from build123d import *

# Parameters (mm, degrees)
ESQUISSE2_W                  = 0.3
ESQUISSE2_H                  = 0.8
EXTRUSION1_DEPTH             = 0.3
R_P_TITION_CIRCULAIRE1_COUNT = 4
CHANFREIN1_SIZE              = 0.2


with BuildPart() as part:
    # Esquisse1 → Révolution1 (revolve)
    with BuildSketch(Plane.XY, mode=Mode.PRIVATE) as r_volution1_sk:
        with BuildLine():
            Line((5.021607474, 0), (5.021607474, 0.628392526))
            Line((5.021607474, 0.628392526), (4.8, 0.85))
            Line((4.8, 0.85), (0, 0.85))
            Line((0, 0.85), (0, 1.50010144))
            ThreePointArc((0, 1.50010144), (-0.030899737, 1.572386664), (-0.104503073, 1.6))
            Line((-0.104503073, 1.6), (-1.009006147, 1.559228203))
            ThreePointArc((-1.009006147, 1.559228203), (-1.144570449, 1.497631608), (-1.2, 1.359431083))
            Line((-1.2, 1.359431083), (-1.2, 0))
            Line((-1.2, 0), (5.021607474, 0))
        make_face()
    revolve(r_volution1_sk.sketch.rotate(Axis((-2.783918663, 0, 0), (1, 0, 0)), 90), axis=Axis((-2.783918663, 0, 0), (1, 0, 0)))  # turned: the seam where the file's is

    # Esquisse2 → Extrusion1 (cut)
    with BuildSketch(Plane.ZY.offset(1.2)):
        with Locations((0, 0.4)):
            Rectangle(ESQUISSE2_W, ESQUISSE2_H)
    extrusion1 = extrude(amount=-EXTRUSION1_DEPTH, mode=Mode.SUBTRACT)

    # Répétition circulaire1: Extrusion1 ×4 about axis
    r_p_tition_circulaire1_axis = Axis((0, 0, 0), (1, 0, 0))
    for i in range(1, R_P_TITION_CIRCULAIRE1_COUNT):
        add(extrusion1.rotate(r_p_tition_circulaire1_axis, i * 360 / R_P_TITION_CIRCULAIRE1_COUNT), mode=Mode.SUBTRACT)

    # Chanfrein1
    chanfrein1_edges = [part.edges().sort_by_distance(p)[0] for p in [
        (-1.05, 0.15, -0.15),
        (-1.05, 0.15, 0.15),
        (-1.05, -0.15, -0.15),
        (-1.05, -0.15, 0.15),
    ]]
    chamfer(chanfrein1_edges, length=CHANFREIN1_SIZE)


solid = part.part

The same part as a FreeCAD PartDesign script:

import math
import FreeCAD as App
import Part
import Sketcher

V = App.Vector
Q = App.Units.Quantity


def edges_at(feature, points):
    """Names of the edges that pass closest to the given points."""
    edges = feature.Shape.Edges
    near = lambda p: min(range(len(edges)), key=lambda i: edges[i].distToShape(Part.Vertex(*p))[0])
    return sorted({f"Edge{near(p) + 1}" for p in points})

doc = App.newDocument("Part")
params = doc.addObject("Spreadsheet::Sheet", "Params")
for row, (alias, value) in enumerate([
    ("sketch1_radius", "0.1 mm"),
    ("sketch1_radius2", "0.2 mm"),
    ("sketch1_width", "4.8 mm"),
    ("revolution_angle", "360 deg"),
    ("sketch2_width", "0.8 mm"),
    ("sketch2_height", "0.3 mm"),
    ("pocket1_length", "0.3 mm"),
    ("chamfer_size", "0.2 mm"),
], start=1):
    params.set(f"A{row}", alias)
    params.set(f"B{row}", "=" + value)
    params.setAlias(f"B{row}", alias)

body = doc.addObject("PartDesign::Body", "Body")

sketch1 = body.newObject("Sketcher::SketchObject", "Sketch")
sketch1.AttachmentSupport = (doc.getObject("XY_Plane"), [""])
sketch1.MapMode = "FlatFace"
sketch1.addGeometry(Part.LineSegment(V(5.02, 0, 0), V(5.02, 0.63, 0)), False)
sketch1.addGeometry(Part.LineSegment(V(5.02, 0.63, 0), V(4.8, 0.85, 0)), False)
sketch1.addGeometry(Part.LineSegment(V(4.8, 0.85, 0), V(0, 0.85, 0)), False)
sketch1.addGeometry(Part.LineSegment(V(0, 0.85, 0), V(0, 1.5, 0)), False)
sketch1.addGeometry(Part.ArcOfCircle(Part.Circle(V(-0.1, 1.5, 0), V(0, 0, 1), 0.1), math.radians(0), math.radians(93)), False)
sketch1.addGeometry(Part.LineSegment(V(-0.1, 1.6, 0), V(-1.01, 1.56, 0)), False)
sketch1.addGeometry(Part.ArcOfCircle(Part.Circle(V(-1, 1.36, 0), V(0, 0, 1), 0.2), math.radians(93), math.radians(180)), False)
sketch1.addGeometry(Part.LineSegment(V(-1.2, 1.36, 0), V(-1.2, 0, 0)), False)
sketch1.addGeometry(Part.LineSegment(V(-1.2, 0, 0), V(5.02, 0, 0)), False)
sketch1.addConstraint(Sketcher.Constraint("Coincident", 0, 2, 1, 1))
sketch1.addConstraint(Sketcher.Constraint("Coincident", 1, 2, 2, 1))
sketch1.addConstraint(Sketcher.Constraint("Coincident", 2, 2, 3, 1))
sketch1.addConstraint(Sketcher.Constraint("Tangent", 3, 2, 4, 1))
sketch1.addConstraint(Sketcher.Constraint("Tangent", 4, 2, 5, 1))
sketch1.addConstraint(Sketcher.Constraint("Tangent", 5, 2, 6, 1))
sketch1.addConstraint(Sketcher.Constraint("Tangent", 6, 2, 7, 1))
sketch1.addConstraint(Sketcher.Constraint("Coincident", 7, 2, 8, 1))
sketch1.addConstraint(Sketcher.Constraint("Coincident", 8, 2, 0, 1))
sketch1.addConstraint(Sketcher.Constraint("Vertical", 0))
sketch1.addConstraint(Sketcher.Constraint("Horizontal", 2))
sketch1.addConstraint(Sketcher.Constraint("Vertical", 3))
sketch1.addConstraint(Sketcher.Constraint("Vertical", 7))
sketch1.addConstraint(Sketcher.Constraint("Horizontal", 8))
sketch1.addConstraint(Sketcher.Constraint("PointOnObject", 2, 2, -2))
sketch1.addConstraint(Sketcher.Constraint("PointOnObject", 7, 2, -1))
sketch1.addConstraint(Sketcher.Constraint("Radius", 4, Q("0.1 mm")))
sketch1.addConstraint(Sketcher.Constraint("Radius", 6, Q("0.2 mm")))
sketch1.addConstraint(Sketcher.Constraint("Angle", 1, Q("135 deg")))
sketch1.addConstraint(Sketcher.Constraint("DistanceX", 2, 2, 2, 1, Q("4.8 mm")))
sketch1.addConstraint(Sketcher.Constraint("DistanceX", 6, 3, -1, 1, Q("1 mm")))
sketch1.addConstraint(Sketcher.Constraint("DistanceY", -1, 1, 4, 2, Q("1.6 mm")))
sketch1.addConstraint(Sketcher.Constraint("DistanceY", -1, 1, 1, 2, Q("0.85 mm")))
sketch1.addConstraint(Sketcher.Constraint("Distance", 1, Q("0.3134 mm")))
sketch1.addConstraint(Sketcher.Constraint("DistanceY", 7, 2, 7, 1, Q("1.359431 mm")))
sketch1.setExpression("Constraints[16]", "Params.sketch1_radius")
sketch1.setExpression("Constraints[17]", "Params.sketch1_radius2")
sketch1.setExpression("Constraints[19]", "Params.sketch1_width")
revolution = body.newObject("PartDesign::Revolution", "Revolution")
revolution.Profile = sketch1
revolution.ReferenceAxis = (sketch1, ["H_Axis"])
revolution.setExpression("Angle", "Params.revolution_angle")

sketch2 = body.newObject("Sketcher::SketchObject", "Sketch001")
sketch2.AttachmentSupport = (doc.getObject("YZ_Plane"), [""])
sketch2.MapMode = "FlatFace"
sketch2.AttachmentOffset = App.Placement(V(0, 0, -1.2), App.Rotation())
sketch2.addGeometry(Part.LineSegment(V(0.8, -0.15, 0), V(0, -0.15, 0)), False)
sketch2.addGeometry(Part.LineSegment(V(0, -0.15, 0), V(0, 0.15, 0)), False)
sketch2.addGeometry(Part.LineSegment(V(0, 0.15, 0), V(0.8, 0.15, 0)), False)
sketch2.addGeometry(Part.LineSegment(V(0.8, 0.15, 0), V(0.8, -0.15, 0)), False)
sketch2.addConstraint(Sketcher.Constraint("Coincident", 0, 2, 1, 1))
sketch2.addConstraint(Sketcher.Constraint("Coincident", 1, 2, 2, 1))
sketch2.addConstraint(Sketcher.Constraint("Coincident", 2, 2, 3, 1))
sketch2.addConstraint(Sketcher.Constraint("Coincident", 3, 2, 0, 1))
sketch2.addConstraint(Sketcher.Constraint("Horizontal", 0))
sketch2.addConstraint(Sketcher.Constraint("Vertical", 1))
sketch2.addConstraint(Sketcher.Constraint("Horizontal", 2))
sketch2.addConstraint(Sketcher.Constraint("Vertical", 3))
sketch2.addConstraint(Sketcher.Constraint("Symmetric", 0, 2, 1, 2, -1, 1))
sketch2.addConstraint(Sketcher.Constraint("DistanceX", 0, 2, 0, 1, Q("0.8 mm")))
sketch2.addConstraint(Sketcher.Constraint("DistanceY", 1, 1, 1, 2, Q("0.3 mm")))
sketch2.setExpression("Constraints[9]", "Params.sketch2_width")
sketch2.setExpression("Constraints[10]", "Params.sketch2_height")
pocket1 = body.newObject("PartDesign::Pocket", "Pocket")
pocket1.Profile = sketch2
pocket1.setExpression("Length", "Params.pocket1_length")
pocket1.Reversed = True
doc.recompute()

polarpattern = body.newObject("PartDesign::PolarPattern", "PolarPattern")
polarpattern.Originals = [pocket1]
polarpattern.Axis = (doc.getObject("X_Axis"), [""])
polarpattern.Angle = 360
polarpattern.Occurrences = 4
body.Tip = polarpattern
doc.recompute()

chamfer = body.newObject("PartDesign::Chamfer", "Chamfer")
chamfer.Base = (polarpattern, edges_at(polarpattern, [
    (-1.05, 0.15, -0.15),
    (-1.05, 0.15, 0.15),
    (-1.05, -0.15, -0.15),
    (-1.05, -0.15, 0.15),
]))
chamfer.setExpression("Size", "Params.chamfer_size")

doc.recompute()
